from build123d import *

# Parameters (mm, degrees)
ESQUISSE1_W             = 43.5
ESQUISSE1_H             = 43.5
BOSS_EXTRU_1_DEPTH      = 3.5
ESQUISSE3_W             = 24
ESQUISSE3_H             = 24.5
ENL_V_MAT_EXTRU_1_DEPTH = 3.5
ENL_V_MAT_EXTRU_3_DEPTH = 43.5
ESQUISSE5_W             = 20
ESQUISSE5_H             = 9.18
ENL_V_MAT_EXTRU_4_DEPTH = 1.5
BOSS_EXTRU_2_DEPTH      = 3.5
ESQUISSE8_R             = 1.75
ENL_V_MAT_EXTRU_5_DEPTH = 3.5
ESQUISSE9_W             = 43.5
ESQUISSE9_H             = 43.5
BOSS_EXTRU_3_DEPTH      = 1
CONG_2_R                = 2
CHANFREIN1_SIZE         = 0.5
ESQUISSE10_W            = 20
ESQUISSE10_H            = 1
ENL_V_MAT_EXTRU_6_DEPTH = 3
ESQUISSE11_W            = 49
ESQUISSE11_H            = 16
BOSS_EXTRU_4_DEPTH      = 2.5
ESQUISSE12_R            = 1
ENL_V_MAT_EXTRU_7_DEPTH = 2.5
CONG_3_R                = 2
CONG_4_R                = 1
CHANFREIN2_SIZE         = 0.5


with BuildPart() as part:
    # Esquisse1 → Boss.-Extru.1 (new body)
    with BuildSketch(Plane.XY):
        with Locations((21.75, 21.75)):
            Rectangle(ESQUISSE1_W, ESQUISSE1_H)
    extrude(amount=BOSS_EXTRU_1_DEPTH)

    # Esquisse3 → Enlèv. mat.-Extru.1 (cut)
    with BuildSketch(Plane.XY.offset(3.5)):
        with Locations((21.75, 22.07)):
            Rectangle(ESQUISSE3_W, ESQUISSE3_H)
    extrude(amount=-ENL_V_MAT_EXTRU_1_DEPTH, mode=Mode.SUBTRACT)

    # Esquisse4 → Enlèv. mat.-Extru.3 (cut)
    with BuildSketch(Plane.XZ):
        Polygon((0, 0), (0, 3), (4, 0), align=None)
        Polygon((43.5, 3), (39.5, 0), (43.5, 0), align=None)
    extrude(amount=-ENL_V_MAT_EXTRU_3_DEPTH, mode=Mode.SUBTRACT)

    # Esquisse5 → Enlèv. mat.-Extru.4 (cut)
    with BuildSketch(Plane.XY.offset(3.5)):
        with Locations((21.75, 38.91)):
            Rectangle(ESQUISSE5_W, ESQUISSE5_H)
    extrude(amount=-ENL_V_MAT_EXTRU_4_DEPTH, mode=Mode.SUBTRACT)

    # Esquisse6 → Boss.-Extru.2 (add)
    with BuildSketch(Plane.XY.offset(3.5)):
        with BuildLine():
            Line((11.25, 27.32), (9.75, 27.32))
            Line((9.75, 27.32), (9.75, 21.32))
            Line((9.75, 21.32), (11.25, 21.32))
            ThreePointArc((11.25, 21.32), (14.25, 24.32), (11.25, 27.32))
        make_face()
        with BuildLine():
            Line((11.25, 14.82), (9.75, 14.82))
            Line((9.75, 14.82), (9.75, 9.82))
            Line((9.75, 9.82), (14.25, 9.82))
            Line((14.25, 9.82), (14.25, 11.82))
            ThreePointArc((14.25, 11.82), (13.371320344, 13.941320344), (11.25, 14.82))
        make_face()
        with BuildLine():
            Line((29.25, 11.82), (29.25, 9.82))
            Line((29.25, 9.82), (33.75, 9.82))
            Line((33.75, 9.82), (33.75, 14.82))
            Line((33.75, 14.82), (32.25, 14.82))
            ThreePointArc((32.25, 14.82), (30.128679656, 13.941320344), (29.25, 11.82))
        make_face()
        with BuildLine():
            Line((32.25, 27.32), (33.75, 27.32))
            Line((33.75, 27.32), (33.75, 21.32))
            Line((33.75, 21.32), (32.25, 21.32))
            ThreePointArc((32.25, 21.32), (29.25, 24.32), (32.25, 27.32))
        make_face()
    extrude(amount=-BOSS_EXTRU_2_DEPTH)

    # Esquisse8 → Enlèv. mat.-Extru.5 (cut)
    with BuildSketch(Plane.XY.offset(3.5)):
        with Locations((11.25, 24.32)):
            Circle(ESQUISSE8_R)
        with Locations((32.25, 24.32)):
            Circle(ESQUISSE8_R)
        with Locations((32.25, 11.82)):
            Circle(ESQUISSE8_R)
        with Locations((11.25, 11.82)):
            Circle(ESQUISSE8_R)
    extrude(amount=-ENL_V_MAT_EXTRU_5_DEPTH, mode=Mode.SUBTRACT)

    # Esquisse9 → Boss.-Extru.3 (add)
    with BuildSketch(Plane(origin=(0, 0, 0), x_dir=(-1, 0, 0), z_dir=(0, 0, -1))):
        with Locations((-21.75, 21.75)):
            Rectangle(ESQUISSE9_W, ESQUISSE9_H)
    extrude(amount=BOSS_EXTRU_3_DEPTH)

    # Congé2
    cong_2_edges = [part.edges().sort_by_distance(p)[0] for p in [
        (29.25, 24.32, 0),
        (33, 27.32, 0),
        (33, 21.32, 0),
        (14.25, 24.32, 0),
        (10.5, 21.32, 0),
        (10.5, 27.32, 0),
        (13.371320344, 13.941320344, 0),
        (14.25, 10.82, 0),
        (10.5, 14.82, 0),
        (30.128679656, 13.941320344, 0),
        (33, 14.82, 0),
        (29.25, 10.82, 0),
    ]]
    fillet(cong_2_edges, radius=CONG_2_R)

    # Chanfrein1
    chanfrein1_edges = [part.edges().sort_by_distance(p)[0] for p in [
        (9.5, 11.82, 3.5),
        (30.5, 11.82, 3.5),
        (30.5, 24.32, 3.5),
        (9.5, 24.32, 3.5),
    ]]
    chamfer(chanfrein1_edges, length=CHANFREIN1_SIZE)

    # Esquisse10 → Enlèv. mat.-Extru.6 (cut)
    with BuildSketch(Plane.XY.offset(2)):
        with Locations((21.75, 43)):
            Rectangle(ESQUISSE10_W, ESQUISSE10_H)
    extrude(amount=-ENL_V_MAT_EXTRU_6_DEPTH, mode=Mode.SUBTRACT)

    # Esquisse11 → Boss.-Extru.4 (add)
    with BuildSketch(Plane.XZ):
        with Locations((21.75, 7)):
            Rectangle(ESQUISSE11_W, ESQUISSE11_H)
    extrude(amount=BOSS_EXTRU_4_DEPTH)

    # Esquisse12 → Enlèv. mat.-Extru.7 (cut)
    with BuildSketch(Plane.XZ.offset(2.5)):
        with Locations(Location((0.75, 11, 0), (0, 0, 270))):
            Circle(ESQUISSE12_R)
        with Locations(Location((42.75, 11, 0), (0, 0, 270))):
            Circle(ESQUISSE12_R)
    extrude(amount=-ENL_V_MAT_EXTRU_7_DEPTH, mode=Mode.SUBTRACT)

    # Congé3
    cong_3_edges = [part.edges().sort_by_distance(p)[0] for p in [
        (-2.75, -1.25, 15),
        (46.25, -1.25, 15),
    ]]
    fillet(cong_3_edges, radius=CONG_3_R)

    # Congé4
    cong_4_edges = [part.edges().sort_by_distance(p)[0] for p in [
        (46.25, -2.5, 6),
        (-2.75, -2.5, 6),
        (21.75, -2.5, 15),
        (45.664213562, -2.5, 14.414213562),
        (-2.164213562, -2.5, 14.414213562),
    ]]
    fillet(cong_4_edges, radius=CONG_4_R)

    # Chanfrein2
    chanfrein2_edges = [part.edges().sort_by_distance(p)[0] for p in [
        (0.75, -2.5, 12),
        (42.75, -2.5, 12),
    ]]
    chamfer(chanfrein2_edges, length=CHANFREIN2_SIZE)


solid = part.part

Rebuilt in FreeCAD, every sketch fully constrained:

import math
import FreeCAD as App
import Part
import Sketcher
from FreeCAD import Vector
Q = App.Units.Quantity


def edges_at(feature, points):
    """Names of the edges that pass closest to the given points."""
    edges = feature.Shape.Edges
    near = lambda p: min(range(len(edges)), key=lambda i: edges[i].distToShape(Part.Vertex(*p))[0])
    return sorted({f"Edge{near(p) + 1}" for p in points})

doc = App.newDocument("Part")
body = doc.addObject("PartDesign::Body", "Body")

# Sketch on XY plane
sketch1 = doc.addObject("Sketcher::SketchObject", "Sketch")
body.addObject(sketch1)
sketch1.AttachmentSupport = (doc.XY_Plane, [""])
sketch1.MapMode = "FlatFace"
sketch1.addGeometry(Part.LineSegment(Vector(0, 44, 0), Vector(0, 0, 0)), False)
sketch1.addGeometry(Part.LineSegment(Vector(0, 0, 0), Vector(44, 0, 0)), False)
sketch1.addGeometry(Part.LineSegment(Vector(44, 0, 0), Vector(44, 44, 0)), False)
sketch1.addGeometry(Part.LineSegment(Vector(44, 44, 0), Vector(0, 44, 0)), False)
sketch1.addConstraint(Sketcher.Constraint("Coincident", 0, 2, 1, 1))
sketch1.addConstraint(Sketcher.Constraint("Coincident", 1, 2, 2, 1))
sketch1.addConstraint(Sketcher.Constraint("Coincident", 2, 2, 3, 1))
sketch1.addConstraint(Sketcher.Constraint("Coincident", 3, 2, 0, 1))
sketch1.addConstraint(Sketcher.Constraint("Vertical", 0))
sketch1.addConstraint(Sketcher.Constraint("Horizontal", 1))
sketch1.addConstraint(Sketcher.Constraint("Vertical", 2))
sketch1.addConstraint(Sketcher.Constraint("Horizontal", 3))
sketch1.addConstraint(Sketcher.Constraint("Coincident", 0, 2, -1, 1))
sketch1.addConstraint(Sketcher.Constraint("Equal", 3, 0))
sketch1.addConstraint(Sketcher.Constraint("DistanceX", 1, 1, 1, 2, Q("43.5 mm")))
pad1 = doc.addObject("PartDesign::Pad", "Pad")
body.addObject(pad1)
pad1.Profile = sketch1
pad1.Length = 3.5

# Sketch on XY plane
sketch2 = doc.addObject("Sketcher::SketchObject", "Sketch001")
body.addObject(sketch2)
sketch2.AttachmentSupport = (doc.XY_Plane, [""])
sketch2.MapMode = "FlatFace"
sketch2.AttachmentOffset = App.Placement(Vector(0, 0, 3.5), App.Rotation())
sketch2.addGeometry(Part.LineSegment(Vector(10, 34, 0), Vector(10, 10, 0)), False)
sketch2.addGeometry(Part.LineSegment(Vector(10, 10, 0), Vector(34, 10, 0)), False)
sketch2.addGeometry(Part.LineSegment(Vector(34, 10, 0), Vector(34, 34, 0)), False)
sketch2.addGeometry(Part.LineSegment(Vector(34, 34, 0), Vector(10, 34, 0)), False)
sketch2.addConstraint(Sketcher.Constraint("Coincident", 0, 2, 1, 1))
sketch2.addConstraint(Sketcher.Constraint("Coincident", 1, 2, 2, 1))
sketch2.addConstraint(Sketcher.Constraint("Coincident", 2, 2, 3, 1))
sketch2.addConstraint(Sketcher.Constraint("Coincident", 3, 2, 0, 1))
sketch2.addConstraint(Sketcher.Constraint("Vertical", 0))
sketch2.addConstraint(Sketcher.Constraint("Horizontal", 1))
sketch2.addConstraint(Sketcher.Constraint("Vertical", 2))
sketch2.addConstraint(Sketcher.Constraint("Horizontal", 3))
sketch2.addConstraint(Sketcher.Constraint("DistanceX", 1, 1, 1, 2, Q("24 mm")))
sketch2.addConstraint(Sketcher.Constraint("DistanceY", 0, 2, 0, 1, Q("24.5 mm")))
sketch2.addConstraint(Sketcher.Constraint("DistanceX", -1, 1, 0, 2, Q("9.75 mm")))
sketch2.addConstraint(Sketcher.Constraint("DistanceY", -1, 1, 0, 2, Q("9.82 mm")))
pocket1 = doc.addObject("PartDesign::Pocket", "Pocket")
body.addObject(pocket1)
pocket1.Profile = sketch2
pocket1.Length = 3.5

# Sketch on XZ plane
sketch3 = doc.addObject("Sketcher::SketchObject", "Sketch002")
body.addObject(sketch3)
sketch3.AttachmentSupport = (doc.XZ_Plane, [""])
sketch3.MapMode = "FlatFace"
sketch3.addGeometry(Part.LineSegment(Vector(0, 3, 0), Vector(0, 0, 0)), False)
sketch3.addGeometry(Part.LineSegment(Vector(0, 0, 0), Vector(4, 0, 0)), False)
sketch3.addGeometry(Part.LineSegment(Vector(4, 0, 0), Vector(0, 3, 0)), False)
sketch3.addGeometry(Part.LineSegment(Vector(43.5, 3, 0), Vector(39.5, 0, 0)), False)
sketch3.addGeometry(Part.LineSegment(Vector(39.5, 0, 0), Vector(43.5, 0, 0)), False)
sketch3.addGeometry(Part.LineSegment(Vector(43.5, 0, 0), Vector(43.5, 3, 0)), False)
sketch3.addConstraint(Sketcher.Constraint("Coincident", 0, 2, 1, 1))
sketch3.addConstraint(Sketcher.Constraint("Coincident", 1, 2, 2, 1))
sketch3.addConstraint(Sketcher.Constraint("Coincident", 2, 2, 0, 1))
sketch3.addConstraint(Sketcher.Constraint("Coincident", 3, 2, 4, 1))
sketch3.addConstraint(Sketcher.Constraint("Coincident", 4, 2, 5, 1))
sketch3.addConstraint(Sketcher.Constraint("Coincident", 5, 2, 3, 1))
sketch3.addConstraint(Sketcher.Constraint("Vertical", 0))
sketch3.addConstraint(Sketcher.Constraint("Horizontal", 1))
sketch3.addConstraint(Sketcher.Constraint("Horizontal", 4))
sketch3.addConstraint(Sketcher.Constraint("Vertical", 5))
sketch3.addConstraint(Sketcher.Constraint("Coincident", 0, 2, -1, 1))
sketch3.addConstraint(Sketcher.Constraint("PointOnObject", 3, 2, -1))
sketch3.addConstraint(Sketcher.Constraint("Horizontal", 2, 2, 5, 2))
sketch3.addConstraint(Sketcher.Constraint("Equal", 1, 4))
sketch3.addConstraint(Sketcher.Constraint("DistanceX", 1, 1, 1, 2, Q("4 mm")))
sketch3.addConstraint(Sketcher.Constraint("DistanceY", 0, 2, 0, 1, Q("3 mm")))
sketch3.addConstraint(Sketcher.Constraint("DistanceX", -1, 1, 3, 2, Q("39.5 mm")))
pocket2 = doc.addObject("PartDesign::Pocket", "Pocket001")
body.addObject(pocket2)
pocket2.Profile = sketch3
pocket2.Length = 43.5

# Sketch on XY plane
sketch4 = doc.addObject("Sketcher::SketchObject", "Sketch003")
body.addObject(sketch4)
sketch4.AttachmentSupport = (doc.XY_Plane, [""])
sketch4.MapMode = "FlatFace"
sketch4.AttachmentOffset = App.Placement(Vector(0, 0, 3.5), App.Rotation())
sketch4.addGeometry(Part.LineSegment(Vector(12, 44, 0), Vector(12, 34, 0)), False)
sketch4.addGeometry(Part.LineSegment(Vector(12, 34, 0), Vector(32, 34, 0)), False)
sketch4.addGeometry(Part.LineSegment(Vector(32, 34, 0), Vector(32, 44, 0)), False)
sketch4.addGeometry(Part.LineSegment(Vector(32, 44, 0), Vector(12, 44, 0)), False)
sketch4.addConstraint(Sketcher.Constraint("Coincident", 0, 2, 1, 1))
sketch4.addConstraint(Sketcher.Constraint("Coincident", 1, 2, 2, 1))
sketch4.addConstraint(Sketcher.Constraint("Coincident", 2, 2, 3, 1))
sketch4.addConstraint(Sketcher.Constraint("Coincident", 3, 2, 0, 1))
sketch4.addConstraint(Sketcher.Constraint("Vertical", 0))
sketch4.addConstraint(Sketcher.Constraint("Horizontal", 1))
sketch4.addConstraint(Sketcher.Constraint("Vertical", 2))
sketch4.addConstraint(Sketcher.Constraint("Horizontal", 3))
sketch4.addConstraint(Sketcher.Constraint("DistanceX", 1, 1, 1, 2, Q("20 mm")))
sketch4.addConstraint(Sketcher.Constraint("DistanceY", 0, 2, 0, 1, Q("9.18 mm")))
sketch4.addConstraint(Sketcher.Constraint("DistanceY", -1, 1, 2, 2, Q("43.5 mm")))
sketch4.addConstraint(Sketcher.Constraint("DistanceX", -1, 1, 0, 2, Q("11.75 mm")))
pocket3 = doc.addObject("PartDesign::Pocket", "Pocket002")
body.addObject(pocket3)
pocket3.Profile = sketch4
pocket3.Length = 1.5

# Sketch on XY plane
sketch5 = doc.addObject("Sketcher::SketchObject", "Sketch004")
body.addObject(sketch5)
sketch5.AttachmentSupport = (doc.XY_Plane, [""])
sketch5.MapMode = "FlatFace"
sketch5.AttachmentOffset = App.Placement(Vector(0, 0, 3.5), App.Rotation())
sketch5.addGeometry(Part.LineSegment(Vector(11.2, 27.3, 0), Vector(9.8, 27.3, 0)), False)
sketch5.addGeometry(Part.LineSegment(Vector(9.8, 27.3, 0), Vector(9.8, 21.3, 0)), False)
sketch5.addGeometry(Part.LineSegment(Vector(9.8, 21.3, 0), Vector(11.2, 21.3, 0)), False)
sketch5.addGeometry(Part.ArcOfCircle(Part.Circle(Vector(11.2, 24.3, 0), Vector(0, 0, 1), 3), math.radians(-90), math.radians(90)), False)
sketch5.addGeometry(Part.LineSegment(Vector(11.2, 14.8, 0), Vector(9.8, 14.8, 0)), False)
sketch5.addGeometry(Part.LineSegment(Vector(9.8, 14.8, 0), Vector(9.8, 9.8, 0)), False)
sketch5.addGeometry(Part.LineSegment(Vector(9.8, 9.8, 0), Vector(14.2, 9.8, 0)), False)
sketch5.addGeometry(Part.LineSegment(Vector(14.2, 9.8, 0), Vector(14.2, 11.8, 0)), False)
sketch5.addGeometry(Part.ArcOfCircle(Part.Circle(Vector(11.3, 11.8, 0), Vector(0, 0, 1), 3), math.radians(0), math.radians(90)), False)
sketch5.addGeometry(Part.LineSegment(Vector(29.2, 11.8, 0), Vector(29.2, 9.8, 0)), False)
sketch5.addGeometry(Part.LineSegment(Vector(29.2, 9.8, 0), Vector(33.8, 9.8, 0)), False)
sketch5.addGeometry(Part.LineSegment(Vector(33.8, 9.8, 0), Vector(33.8, 14.8, 0)), False)
sketch5.addGeometry(Part.LineSegment(Vector(33.8, 14.8, 0), Vector(32.2, 14.8, 0)), False)
sketch5.addGeometry(Part.ArcOfCircle(Part.Circle(Vector(32.2, 11.8, 0), Vector(0, 0, 1), 3), math.radians(90), math.radians(180)), False)
sketch5.addGeometry(Part.LineSegment(Vector(33.8, 27.3, 0), Vector(32.2, 27.3, 0)), False)
sketch5.addGeometry(Part.ArcOfCircle(Part.Circle(Vector(32.2, 24.3, 0), Vector(0, 0, 1), 3), math.radians(90), math.radians(270)), False)
sketch5.addGeometry(Part.LineSegment(Vector(32.2, 21.3, 0), Vector(33.8, 21.3, 0)), False)
sketch5.addGeometry(Part.LineSegment(Vector(33.8, 21.3, 0), Vector(33.8, 27.3, 0)), False)
sketch5.addConstraint(Sketcher.Constraint("Coincident", 0, 2, 1, 1))
sketch5.addConstraint(Sketcher.Constraint("Coincident", 1, 2, 2, 1))
sketch5.addConstraint(Sketcher.Constraint("Tangent", 2, 2, 3, 1))
sketch5.addConstraint(Sketcher.Constraint("Tangent", 3, 2, 0, 1))
sketch5.addConstraint(Sketcher.Constraint("Coincident", 4, 2, 5, 1))
sketch5.addConstraint(Sketcher.Constraint("Coincident", 5, 2, 6, 1))
sketch5.addConstraint(Sketcher.Constraint("Coincident", 6, 2, 7, 1))
sketch5.addConstraint(Sketcher.Constraint("Tangent", 7, 2, 8, 1))
sketch5.addConstraint(Sketcher.Constraint("Tangent", 8, 2, 4, 1))
sketch5.addConstraint(Sketcher.Constraint("Coincident", 9, 2, 10, 1))
sketch5.addConstraint(Sketcher.Constraint("Coincident", 10, 2, 11, 1))
sketch5.addConstraint(Sketcher.Constraint("Coincident", 11, 2, 12, 1))
sketch5.addConstraint(Sketcher.Constraint("Tangent", 12, 2, 13, 1))
sketch5.addConstraint(Sketcher.Constraint("Tangent", 13, 2, 9, 1))
sketch5.addConstraint(Sketcher.Constraint("Tangent", 14, 2, 15, 1))
sketch5.addConstraint(Sketcher.Constraint("Tangent", 15, 2, 16, 1))
sketch5.addConstraint(Sketcher.Constraint("Coincident", 16, 2, 17, 1))
sketch5.addConstraint(Sketcher.Constraint("Coincident", 17, 2, 14, 1))
sketch5.addConstraint(Sketcher.Constraint("Horizontal", 0))
sketch5.addConstraint(Sketcher.Constraint("Vertical", 1))
sketch5.addConstraint(Sketcher.Constraint("Horizontal", 2))
sketch5.addConstraint(Sketcher.Constraint("Horizontal", 4))
sketch5.addConstraint(Sketcher.Constraint("Vertical", 5))
sketch5.addConstraint(Sketcher.Constraint("Horizontal", 6))
sketch5.addConstraint(Sketcher.Constraint("Vertical", 7))
sketch5.addConstraint(Sketcher.Constraint("Vertical", 9))
sketch5.addConstraint(Sketcher.Constraint("Horizontal", 10))
sketch5.addConstraint(Sketcher.Constraint("Vertical", 11))
sketch5.addConstraint(Sketcher.Constraint("Horizontal", 12))
sketch5.addConstraint(Sketcher.Constraint("Horizontal", 14))
sketch5.addConstraint(Sketcher.Constraint("Horizontal", 16))
sketch5.addConstraint(Sketcher.Constraint("Vertical", 17))
sketch5.addConstraint(Sketcher.Constraint("Equal", 3, 8))
sketch5.addConstraint(Sketcher.Constraint("Equal", 8, 13))
sketch5.addConstraint(Sketcher.Constraint("Equal", 13, 15))
sketch5.addConstraint(Sketcher.Constraint("Horizontal", 8, 3, 13, 3))
sketch5.addConstraint(Sketcher.Constraint("Horizontal", 3, 3, 15, 3))
sketch5.addConstraint(Sketcher.Constraint("Horizontal", 6, 2, 9, 2))
sketch5.addConstraint(Sketcher.Constraint("Vertical", 3, 3, 8, 3))
sketch5.addConstraint(Sketcher.Constraint("Vertical", 13, 3, 15, 3))
sketch5.addConstraint(Sketcher.Constraint("Vertical", 1, 2, 4, 2))
sketch5.addConstraint(Sketcher.Constraint("Vertical", 11, 2, 16, 2))
sketch5.addConstraint(Sketcher.Constraint("Equal", 6, 10))
sketch5.addConstraint(Sketcher.Constraint("Radius", 3, Q("3 mm")))
sketch5.addConstraint(Sketcher.Constraint("DistanceY", 5, 2, 5, 1, Q("5 mm")))
sketch5.addConstraint(Sketcher.Constraint("DistanceX", 0, 2, 0, 1, Q("1.5 mm")))
sketch5.addConstraint(Sketcher.Constraint("DistanceX", 8, 3, 13, 3, Q("21 mm")))
sketch5.addConstraint(Sketcher.Constraint("DistanceY", 8, 3, 3, 3, Q("12.5 mm")))
sketch5.addConstraint(Sketcher.Constraint("DistanceX", -1, 1, 3, 3, Q("11.25 mm")))
sketch5.addConstraint(Sketcher.Constraint("DistanceY", -1, 1, 3, 3, Q("24.32 mm")))
pad2 = doc.addObject("PartDesign::Pad", "Pad001")
body.addObject(pad2)
pad2.Profile = sketch5
pad2.Length = 3.5
pad2.Reversed = True

# Sketch on XY plane
sketch6 = doc.addObject("Sketcher::SketchObject", "Sketch005")
body.addObject(sketch6)
sketch6.AttachmentSupport = (doc.XY_Plane, [""])
sketch6.MapMode = "FlatFace"
sketch6.AttachmentOffset = App.Placement(Vector(0, 0, 3.5), App.Rotation())
sketch6.addGeometry(Part.Circle(Vector(11.2, 24.3, 0), Vector(0, 0, 1), 1.8), False)
sketch6.addGeometry(Part.Circle(Vector(32.2, 24.3, 0), Vector(0, 0, 1), 1.8), False)
sketch6.addGeometry(Part.Circle(Vector(32.2, 11.8, 0), Vector(0, 0, 1), 1.8), False)
sketch6.addGeometry(Part.Circle(Vector(11.2, 11.8, 0), Vector(0, 0, 1), 1.8), False)
sketch6.addConstraint(Sketcher.Constraint("Equal", 0, 1))
sketch6.addConstraint(Sketcher.Constraint("Equal", 1, 2))
sketch6.addConstraint(Sketcher.Constraint("Equal", 2, 3))
sketch6.addConstraint(Sketcher.Constraint("Horizontal", 0, 3, 1, 3))
sketch6.addConstraint(Sketcher.Constraint("Horizontal", 2, 3, 3, 3))
sketch6.addConstraint(Sketcher.Constraint("Vertical", 1, 3, 2, 3))
sketch6.addConstraint(Sketcher.Constraint("Vertical", 0, 3, 3, 3))
sketch6.addConstraint(Sketcher.Constraint("Diameter", 0, Q("3.5 mm")))
sketch6.addConstraint(Sketcher.Constraint("DistanceX", 0, 3, 1, 3, Q("21 mm")))
sketch6.addConstraint(Sketcher.Constraint("DistanceY", 2, 3, 1, 3, Q("12.5 mm")))
sketch6.addConstraint(Sketcher.Constraint("DistanceX", -1, 1, 0, 3, Q("11.25 mm")))
sketch6.addConstraint(Sketcher.Constraint("DistanceY", -1, 1, 0, 3, Q("24.32 mm")))
pocket4 = doc.addObject("PartDesign::Pocket", "Pocket003")
body.addObject(pocket4)
pocket4.Profile = sketch6
pocket4.Length = 3.5

# Sketch on XY plane
sketch7 = doc.addObject("Sketcher::SketchObject", "Sketch006")
body.addObject(sketch7)
sketch7.AttachmentSupport = (doc.XY_Plane, [""])
sketch7.MapMode = "FlatFace"
sketch7.addGeometry(Part.LineSegment(Vector(44, 44, 0), Vector(44, 0, 0)), False)
sketch7.addGeometry(Part.LineSegment(Vector(44, 0, 0), Vector(0, 0, 0)), False)
sketch7.addGeometry(Part.LineSegment(Vector(0, 0, 0), Vector(0, 44, 0)), False)
sketch7.addGeometry(Part.LineSegment(Vector(0, 44, 0), Vector(44, 44, 0)), False)
sketch7.addConstraint(Sketcher.Constraint("Coincident", 0, 2, 1, 1))
sketch7.addConstraint(Sketcher.Constraint("Coincident", 1, 2, 2, 1))
sketch7.addConstraint(Sketcher.Constraint("Coincident", 2, 2, 3, 1))
sketch7.addConstraint(Sketcher.Constraint("Coincident", 3, 2, 0, 1))
sketch7.addConstraint(Sketcher.Constraint("Vertical", 0))
sketch7.addConstraint(Sketcher.Constraint("Horizontal", 1))
sketch7.addConstraint(Sketcher.Constraint("Vertical", 2))
sketch7.addConstraint(Sketcher.Constraint("Horizontal", 3))
sketch7.addConstraint(Sketcher.Constraint("Coincident", 1, 2, -1, 1))
sketch7.addConstraint(Sketcher.Constraint("Equal", 3, 0))
sketch7.addConstraint(Sketcher.Constraint("DistanceX", 1, 2, 1, 1, Q("43.5 mm")))
pad3 = doc.addObject("PartDesign::Pad", "Pad002")
body.addObject(pad3)
pad3.Profile = sketch7
pad3.Length = 1
pad3.Reversed = True
doc.recompute()

fillet = doc.addObject("PartDesign::Fillet", "Fillet")
body.addObject(fillet)
fillet.Base = (pad3, edges_at(pad3, [
    (29.25, 24.32, 0),
    (33, 27.32, 0),
    (33, 21.32, 0),
    (14.25, 24.32, 0),
    (10.5, 21.32, 0),
    (10.5, 27.32, 0),
    (13.371, 13.941, 0),
    (14.25, 10.82, 0),
    (10.5, 14.82, 0),
    (30.129, 13.941, 0),
    (33, 14.82, 0),
    (29.25, 10.82, 0),
]))
fillet.Radius = 2
doc.recompute()

chamfer = doc.addObject("PartDesign::Chamfer", "Chamfer")
body.addObject(chamfer)
chamfer.Base = (fillet, edges_at(fillet, [
    (9.5, 11.82, 3.5),
    (30.5, 11.82, 3.5),
    (30.5, 24.32, 3.5),
    (9.5, 24.32, 3.5),
]))
chamfer.Size = 0.5

# Sketch on XY plane
sketch8 = doc.addObject("Sketcher::SketchObject", "Sketch007")
body.addObject(sketch8)
sketch8.AttachmentSupport = (doc.XY_Plane, [""])
sketch8.MapMode = "FlatFace"
sketch8.AttachmentOffset = App.Placement(Vector(0, 0, 2), App.Rotation())
sketch8.addGeometry(Part.LineSegment(Vector(11.8, 43.5, 0), Vector(11.8, 42.5, 0)), False)
sketch8.addGeometry(Part.LineSegment(Vector(11.8, 42.5, 0), Vector(31.8, 42.5, 0)), False)
sketch8.addGeometry(Part.LineSegment(Vector(31.8, 42.5, 0), Vector(31.8, 43.5, 0)), False)
sketch8.addGeometry(Part.LineSegment(Vector(31.8, 43.5, 0), Vector(11.8, 43.5, 0)), False)
sketch8.addConstraint(Sketcher.Constraint("Coincident", 0, 2, 1, 1))
sketch8.addConstraint(Sketcher.Constraint("Coincident", 1, 2, 2, 1))
sketch8.addConstraint(Sketcher.Constraint("Coincident", 2, 2, 3, 1))
sketch8.addConstraint(Sketcher.Constraint("Coincident", 3, 2, 0, 1))
sketch8.addConstraint(Sketcher.Constraint("Vertical", 0))
sketch8.addConstraint(Sketcher.Constraint("Horizontal", 1))
sketch8.addConstraint(Sketcher.Constraint("Vertical", 2))
sketch8.addConstraint(Sketcher.Constraint("Horizontal", 3))
sketch8.addConstraint(Sketcher.Constraint("DistanceX", 1, 1, 1, 2, Q("20 mm")))
sketch8.addConstraint(Sketcher.Constraint("DistanceY", 0, 2, 0, 1, Q("1 mm")))
sketch8.addConstraint(Sketcher.Constraint("DistanceY", -1, 1, 0, 2, Q("42.5 mm")))
sketch8.addConstraint(Sketcher.Constraint("DistanceX", -1, 1, 0, 2, Q("11.75 mm")))
pocket5 = doc.addObject("PartDesign::Pocket", "Pocket004")
body.addObject(pocket5)
pocket5.Profile = sketch8
pocket5.Length = 3

# Sketch on XZ plane
sketch9 = doc.addObject("Sketcher::SketchObject", "Sketch008")
body.addObject(sketch9)
sketch9.AttachmentSupport = (doc.XZ_Plane, [""])
sketch9.MapMode = "FlatFace"
sketch9.addGeometry(Part.LineSegment(Vector(-3, 15, 0), Vector(-3, -1, 0)), False)
sketch9.addGeometry(Part.LineSegment(Vector(-3, -1, 0), Vector(46, -1, 0)), False)
sketch9.addGeometry(Part.LineSegment(Vector(46, -1, 0), Vector(46, 15, 0)), False)
sketch9.addGeometry(Part.LineSegment(Vector(46, 15, 0), Vector(-3, 15, 0)), False)
sketch9.addConstraint(Sketcher.Constraint("Coincident", 0, 2, 1, 1))
sketch9.addConstraint(Sketcher.Constraint("Coincident", 1, 2, 2, 1))
sketch9.addConstraint(Sketcher.Constraint("Coincident", 2, 2, 3, 1))
sketch9.addConstraint(Sketcher.Constraint("Coincident", 3, 2, 0, 1))
sketch9.addConstraint(Sketcher.Constraint("Vertical", 0))
sketch9.addConstraint(Sketcher.Constraint("Horizontal", 1))
sketch9.addConstraint(Sketcher.Constraint("Vertical", 2))
sketch9.addConstraint(Sketcher.Constraint("Horizontal", 3))
sketch9.addConstraint(Sketcher.Constraint("DistanceX", 1, 1, 1, 2, Q("49 mm")))
sketch9.addConstraint(Sketcher.Constraint("DistanceY", 0, 2, 0, 1, Q("16 mm")))
sketch9.addConstraint(Sketcher.Constraint("DistanceY", 0, 2, -1, 1, Q("1 mm")))
sketch9.addConstraint(Sketcher.Constraint("DistanceX", 0, 2, -1, 1, Q("2.75 mm")))
pad4 = doc.addObject("PartDesign::Pad", "Pad003")
body.addObject(pad4)
pad4.Profile = sketch9
pad4.Length = 2.5

# Sketch on XZ plane
sketch10 = doc.addObject("Sketcher::SketchObject", "Sketch009")
body.addObject(sketch10)
sketch10.AttachmentSupport = (doc.XZ_Plane, [""])
sketch10.MapMode = "FlatFace"
sketch10.AttachmentOffset = App.Placement(Vector(0, 0, 2.5), App.Rotation())
sketch10.addGeometry(Part.Circle(Vector(0.8, 11, 0), Vector(0, 0, 1), 1), False)
sketch10.addGeometry(Part.Circle(Vector(42.8, 11, 0), Vector(0, 0, 1), 1), False)
sketch10.addConstraint(Sketcher.Constraint("Equal", 0, 1))
sketch10.addConstraint(Sketcher.Constraint("Horizontal", 0, 3, 1, 3))
sketch10.addConstraint(Sketcher.Constraint("Diameter", 0, Q("2 mm")))
sketch10.addConstraint(Sketcher.Constraint("DistanceY", -1, 1, 0, 3, Q("11 mm")))
sketch10.addConstraint(Sketcher.Constraint("DistanceX", 0, 3, 1, 3, Q("42 mm")))
sketch10.addConstraint(Sketcher.Constraint("DistanceX", -1, 1, 0, 3, Q("0.75 mm")))
pocket6 = doc.addObject("PartDesign::Pocket", "Pocket005")
body.addObject(pocket6)
pocket6.Profile = sketch10
pocket6.Length = 2.5
doc.recompute()

fillet2 = doc.addObject("PartDesign::Fillet", "Fillet001")
body.addObject(fillet2)
fillet2.Base = (pocket6, edges_at(pocket6, [(-2.75, -1.25, 15), (46.25, -1.25, 15)]))
fillet2.Radius = 2
doc.recompute()

fillet3 = doc.addObject("PartDesign::Fillet", "Fillet002")
body.addObject(fillet3)
fillet3.Base = (fillet2, edges_at(fillet2, [
    (46.25, -2.5, 6),
    (-2.75, -2.5, 6),
    (21.75, -2.5, 15),
    (45.664, -2.5, 14.414),
    (-2.164, -2.5, 14.414),
]))
fillet3.Radius = 1
doc.recompute()

chamfer2 = doc.addObject("PartDesign::Chamfer", "Chamfer001")
body.addObject(chamfer2)
chamfer2.Base = (fillet3, edges_at(fillet3, [(0.75, -2.5, 12), (42.75, -2.5, 12)]))
chamfer2.Size = 0.5

doc.recompute()
